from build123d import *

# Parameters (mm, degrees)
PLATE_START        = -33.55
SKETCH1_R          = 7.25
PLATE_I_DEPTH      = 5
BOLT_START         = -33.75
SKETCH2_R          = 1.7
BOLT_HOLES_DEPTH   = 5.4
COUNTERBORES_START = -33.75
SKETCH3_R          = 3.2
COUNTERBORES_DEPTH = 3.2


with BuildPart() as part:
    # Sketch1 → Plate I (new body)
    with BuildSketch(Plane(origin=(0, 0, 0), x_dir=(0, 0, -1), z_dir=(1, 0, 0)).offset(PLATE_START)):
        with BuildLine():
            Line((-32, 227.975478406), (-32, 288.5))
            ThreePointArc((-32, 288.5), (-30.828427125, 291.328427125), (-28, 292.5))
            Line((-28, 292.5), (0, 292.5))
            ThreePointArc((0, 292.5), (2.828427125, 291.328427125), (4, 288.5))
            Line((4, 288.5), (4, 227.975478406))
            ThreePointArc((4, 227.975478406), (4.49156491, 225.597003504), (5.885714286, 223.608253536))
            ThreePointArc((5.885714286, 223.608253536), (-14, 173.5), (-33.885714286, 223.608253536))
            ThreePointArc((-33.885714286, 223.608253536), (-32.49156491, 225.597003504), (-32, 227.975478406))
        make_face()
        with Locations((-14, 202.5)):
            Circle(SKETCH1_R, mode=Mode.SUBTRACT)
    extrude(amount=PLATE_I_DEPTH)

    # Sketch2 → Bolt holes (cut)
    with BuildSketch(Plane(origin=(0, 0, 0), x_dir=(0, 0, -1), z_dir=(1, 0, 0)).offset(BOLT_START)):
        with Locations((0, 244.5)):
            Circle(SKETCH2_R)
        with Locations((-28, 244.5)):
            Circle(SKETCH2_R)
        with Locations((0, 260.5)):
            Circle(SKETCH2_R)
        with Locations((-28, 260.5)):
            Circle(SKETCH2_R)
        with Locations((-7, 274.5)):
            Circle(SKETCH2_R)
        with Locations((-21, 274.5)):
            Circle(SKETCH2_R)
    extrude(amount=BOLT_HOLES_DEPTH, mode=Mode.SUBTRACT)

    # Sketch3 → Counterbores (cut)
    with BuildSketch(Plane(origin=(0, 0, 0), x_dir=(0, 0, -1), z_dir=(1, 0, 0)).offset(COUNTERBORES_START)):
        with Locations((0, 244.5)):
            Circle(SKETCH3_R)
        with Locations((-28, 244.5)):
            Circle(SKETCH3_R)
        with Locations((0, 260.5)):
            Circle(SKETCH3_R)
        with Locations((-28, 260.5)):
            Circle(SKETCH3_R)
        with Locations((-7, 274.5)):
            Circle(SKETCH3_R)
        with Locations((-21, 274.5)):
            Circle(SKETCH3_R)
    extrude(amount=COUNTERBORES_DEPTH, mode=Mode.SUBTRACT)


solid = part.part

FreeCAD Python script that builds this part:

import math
import FreeCAD as App
import Part
import Sketcher

V = App.Vector

doc = App.newDocument("Part")
body = doc.addObject("PartDesign::Body", "Body")

sketch1 = body.newObject("Sketcher::SketchObject", "Sketch")
sketch1.AttachmentSupport = (doc.getObject("YZ_Plane"), [""])
sketch1.MapMode = "FlatFace"
sketch1.AttachmentOffset = App.Placement(V(0, 0, -33.55), App.Rotation())
sketch1.addGeometry([
    Part.LineSegment(V(288.5, 32, 0), V(227.975478, 32, 0)),
    Part.ArcOfCircle(Part.Circle(V(227.975478, 38, 0), V(0, 0, 1), 6), math.radians(-136.708192), math.radians(-90)),
    Part.ArcOfCircle(Part.Circle(V(202.5, 14, 0), V(0, 0, 1), 29), math.radians(43.291808), math.radians(316.708192)),
    Part.ArcOfCircle(Part.Circle(V(227.975478, -10, 0), V(0, 0, 1), 6), math.radians(90), math.radians(136.708192)),
    Part.LineSegment(V(227.975478, -4, 0), V(288.5, -4, 0)),
    Part.ArcOfCircle(Part.Circle(V(288.5, 0, 0), V(0, 0, 1), 4), math.radians(-90), math.radians(0)),
    Part.LineSegment(V(292.5, 0, 0), V(292.5, 28, 0)),
    Part.ArcOfCircle(Part.Circle(V(288.5, 28, 0), V(0, 0, 1), 4), math.radians(0), math.radians(90)),
    Part.Circle(V(202.5, 14, 0), V(0, 0, 1), 7.25),
], False)
sketch1.addConstraint([
    Sketcher.Constraint("Tangent", 0, 2, 1, 2),
    Sketcher.Constraint("Tangent", 1, 1, 2, 1),
    Sketcher.Constraint("Tangent", 2, 2, 3, 2),
    Sketcher.Constraint("Tangent", 3, 1, 4, 1),
    Sketcher.Constraint("Tangent", 4, 2, 5, 1),
    Sketcher.Constraint("Tangent", 5, 2, 6, 1),
    Sketcher.Constraint("Tangent", 6, 2, 7, 1),
    Sketcher.Constraint("Tangent", 7, 2, 0, 1),
    Sketcher.Constraint("Horizontal", 0),
    Sketcher.Constraint("Horizontal", 4),
    Sketcher.Constraint("Vertical", 6),
    Sketcher.Constraint("Coincident", 8, 3, 2, 3),
    Sketcher.Constraint("Equal", 1, 3),
    Sketcher.Constraint("Equal", 5, 7),
    Sketcher.Constraint("PointOnObject", 5, 3, -1),
    Sketcher.Constraint("Vertical", 1, 3, 3, 3),
    Sketcher.Constraint("Radius", 1, 6.0),
    Sketcher.Constraint("Radius", 2, 29.0),
    Sketcher.Constraint("Radius", 5, 4.0),
    Sketcher.Constraint("Diameter", 8, 14.5),
    Sketcher.Constraint("DistanceY", 6, 1, 6, 2, 28.0),
    Sketcher.Constraint("DistanceX", 2, 3, 5, 3, 86.0),
    Sketcher.Constraint("DistanceX", -1, 1, 2, 3, 202.5),
])
pad1 = body.newObject("PartDesign::Pad", "Pad")
pad1.Profile = sketch1
pad1.Length = 5

sketch2 = body.newObject("Sketcher::SketchObject", "Sketch001")
sketch2.AttachmentSupport = (doc.getObject("YZ_Plane"), [""])
sketch2.MapMode = "FlatFace"
sketch2.AttachmentOffset = App.Placement(V(0, 0, -33.75), App.Rotation())
sketch2.addGeometry([
    Part.Circle(V(244.5, 0, 0), V(0, 0, 1), 1.7),
    Part.Circle(V(244.5, 28, 0), V(0, 0, 1), 1.7),
    Part.Circle(V(260.5, 0, 0), V(0, 0, 1), 1.7),
    Part.Circle(V(260.5, 28, 0), V(0, 0, 1), 1.7),
    Part.Circle(V(274.5, 7, 0), V(0, 0, 1), 1.7),
    Part.Circle(V(274.5, 21, 0), V(0, 0, 1), 1.7),
], False)
sketch2.addConstraint([
    Sketcher.Constraint("Equal", 0, 1),
    Sketcher.Constraint("Equal", 1, 2),
    Sketcher.Constraint("Equal", 2, 3),
    Sketcher.Constraint("Equal", 3, 4),
    Sketcher.Constraint("Equal", 4, 5),
    Sketcher.Constraint("PointOnObject", 0, 3, -1),
    Sketcher.Constraint("PointOnObject", 2, 3, -1),
    Sketcher.Constraint("Horizontal", 1, 3, 3, 3),
    Sketcher.Constraint("Vertical", 0, 3, 1, 3),
    Sketcher.Constraint("Vertical", 2, 3, 3, 3),
    Sketcher.Constraint("Vertical", 4, 3, 5, 3),
    Sketcher.Constraint("Diameter", 0, 3.4),
    Sketcher.Constraint("DistanceY", -1, 1, 1, 3, 28.0),
    Sketcher.Constraint("DistanceY", -1, 1, 4, 3, 7.0),
    Sketcher.Constraint("DistanceY", -1, 1, 5, 3, 21.0),
    Sketcher.Constraint("DistanceX", 0, 3, 2, 3, 16.0),
    Sketcher.Constraint("DistanceX", 2, 3, 4, 3, 14.0),
    Sketcher.Constraint("DistanceX", -1, 1, 0, 3, 244.5),
])
pocket1 = body.newObject("PartDesign::Pocket", "Pocket")
pocket1.Profile = sketch2
pocket1.Length = 5.4
pocket1.Reversed = True

sketch3 = body.newObject("Sketcher::SketchObject", "Sketch002")
sketch3.AttachmentSupport = (doc.getObject("YZ_Plane"), [""])
sketch3.MapMode = "FlatFace"
sketch3.AttachmentOffset = App.Placement(V(0, 0, -33.75), App.Rotation())
sketch3.addGeometry([
    Part.Circle(V(244.5, 0, 0), V(0, 0, 1), 3.2),
    Part.Circle(V(244.5, 28, 0), V(0, 0, 1), 3.2),
    Part.Circle(V(260.5, 0, 0), V(0, 0, 1), 3.2),
    Part.Circle(V(260.5, 28, 0), V(0, 0, 1), 3.2),
    Part.Circle(V(274.5, 7, 0), V(0, 0, 1), 3.2),
    Part.Circle(V(274.5, 21, 0), V(0, 0, 1), 3.2),
], False)
sketch3.addConstraint([
    Sketcher.Constraint("Equal", 0, 1),
    Sketcher.Constraint("Equal", 1, 2),
    Sketcher.Constraint("Equal", 2, 3),
    Sketcher.Constraint("Equal", 3, 4),
    Sketcher.Constraint("Equal", 4, 5),
    Sketcher.Constraint("PointOnObject", 0, 3, -1),
    Sketcher.Constraint("PointOnObject", 2, 3, -1),
    Sketcher.Constraint("Horizontal", 1, 3, 3, 3),
    Sketcher.Constraint("Vertical", 0, 3, 1, 3),
    Sketcher.Constraint("Vertical", 2, 3, 3, 3),
    Sketcher.Constraint("Vertical", 4, 3, 5, 3),
    Sketcher.Constraint("Diameter", 0, 6.4),
    Sketcher.Constraint("DistanceY", -1, 1, 1, 3, 28.0),
    Sketcher.Constraint("DistanceY", -1, 1, 4, 3, 7.0),
    Sketcher.Constraint("DistanceY", -1, 1, 5, 3, 21.0),
    Sketcher.Constraint("DistanceX", 0, 3, 2, 3, 16.0),
    Sketcher.Constraint("DistanceX", 2, 3, 4, 3, 14.0),
    Sketcher.Constraint("DistanceX", -1, 1, 0, 3, 244.5),
])
pocket2 = body.newObject("PartDesign::Pocket", "Pocket001")
pocket2.Profile = sketch3
pocket2.Length = 3.2
pocket2.Reversed = True

doc.recompute()
